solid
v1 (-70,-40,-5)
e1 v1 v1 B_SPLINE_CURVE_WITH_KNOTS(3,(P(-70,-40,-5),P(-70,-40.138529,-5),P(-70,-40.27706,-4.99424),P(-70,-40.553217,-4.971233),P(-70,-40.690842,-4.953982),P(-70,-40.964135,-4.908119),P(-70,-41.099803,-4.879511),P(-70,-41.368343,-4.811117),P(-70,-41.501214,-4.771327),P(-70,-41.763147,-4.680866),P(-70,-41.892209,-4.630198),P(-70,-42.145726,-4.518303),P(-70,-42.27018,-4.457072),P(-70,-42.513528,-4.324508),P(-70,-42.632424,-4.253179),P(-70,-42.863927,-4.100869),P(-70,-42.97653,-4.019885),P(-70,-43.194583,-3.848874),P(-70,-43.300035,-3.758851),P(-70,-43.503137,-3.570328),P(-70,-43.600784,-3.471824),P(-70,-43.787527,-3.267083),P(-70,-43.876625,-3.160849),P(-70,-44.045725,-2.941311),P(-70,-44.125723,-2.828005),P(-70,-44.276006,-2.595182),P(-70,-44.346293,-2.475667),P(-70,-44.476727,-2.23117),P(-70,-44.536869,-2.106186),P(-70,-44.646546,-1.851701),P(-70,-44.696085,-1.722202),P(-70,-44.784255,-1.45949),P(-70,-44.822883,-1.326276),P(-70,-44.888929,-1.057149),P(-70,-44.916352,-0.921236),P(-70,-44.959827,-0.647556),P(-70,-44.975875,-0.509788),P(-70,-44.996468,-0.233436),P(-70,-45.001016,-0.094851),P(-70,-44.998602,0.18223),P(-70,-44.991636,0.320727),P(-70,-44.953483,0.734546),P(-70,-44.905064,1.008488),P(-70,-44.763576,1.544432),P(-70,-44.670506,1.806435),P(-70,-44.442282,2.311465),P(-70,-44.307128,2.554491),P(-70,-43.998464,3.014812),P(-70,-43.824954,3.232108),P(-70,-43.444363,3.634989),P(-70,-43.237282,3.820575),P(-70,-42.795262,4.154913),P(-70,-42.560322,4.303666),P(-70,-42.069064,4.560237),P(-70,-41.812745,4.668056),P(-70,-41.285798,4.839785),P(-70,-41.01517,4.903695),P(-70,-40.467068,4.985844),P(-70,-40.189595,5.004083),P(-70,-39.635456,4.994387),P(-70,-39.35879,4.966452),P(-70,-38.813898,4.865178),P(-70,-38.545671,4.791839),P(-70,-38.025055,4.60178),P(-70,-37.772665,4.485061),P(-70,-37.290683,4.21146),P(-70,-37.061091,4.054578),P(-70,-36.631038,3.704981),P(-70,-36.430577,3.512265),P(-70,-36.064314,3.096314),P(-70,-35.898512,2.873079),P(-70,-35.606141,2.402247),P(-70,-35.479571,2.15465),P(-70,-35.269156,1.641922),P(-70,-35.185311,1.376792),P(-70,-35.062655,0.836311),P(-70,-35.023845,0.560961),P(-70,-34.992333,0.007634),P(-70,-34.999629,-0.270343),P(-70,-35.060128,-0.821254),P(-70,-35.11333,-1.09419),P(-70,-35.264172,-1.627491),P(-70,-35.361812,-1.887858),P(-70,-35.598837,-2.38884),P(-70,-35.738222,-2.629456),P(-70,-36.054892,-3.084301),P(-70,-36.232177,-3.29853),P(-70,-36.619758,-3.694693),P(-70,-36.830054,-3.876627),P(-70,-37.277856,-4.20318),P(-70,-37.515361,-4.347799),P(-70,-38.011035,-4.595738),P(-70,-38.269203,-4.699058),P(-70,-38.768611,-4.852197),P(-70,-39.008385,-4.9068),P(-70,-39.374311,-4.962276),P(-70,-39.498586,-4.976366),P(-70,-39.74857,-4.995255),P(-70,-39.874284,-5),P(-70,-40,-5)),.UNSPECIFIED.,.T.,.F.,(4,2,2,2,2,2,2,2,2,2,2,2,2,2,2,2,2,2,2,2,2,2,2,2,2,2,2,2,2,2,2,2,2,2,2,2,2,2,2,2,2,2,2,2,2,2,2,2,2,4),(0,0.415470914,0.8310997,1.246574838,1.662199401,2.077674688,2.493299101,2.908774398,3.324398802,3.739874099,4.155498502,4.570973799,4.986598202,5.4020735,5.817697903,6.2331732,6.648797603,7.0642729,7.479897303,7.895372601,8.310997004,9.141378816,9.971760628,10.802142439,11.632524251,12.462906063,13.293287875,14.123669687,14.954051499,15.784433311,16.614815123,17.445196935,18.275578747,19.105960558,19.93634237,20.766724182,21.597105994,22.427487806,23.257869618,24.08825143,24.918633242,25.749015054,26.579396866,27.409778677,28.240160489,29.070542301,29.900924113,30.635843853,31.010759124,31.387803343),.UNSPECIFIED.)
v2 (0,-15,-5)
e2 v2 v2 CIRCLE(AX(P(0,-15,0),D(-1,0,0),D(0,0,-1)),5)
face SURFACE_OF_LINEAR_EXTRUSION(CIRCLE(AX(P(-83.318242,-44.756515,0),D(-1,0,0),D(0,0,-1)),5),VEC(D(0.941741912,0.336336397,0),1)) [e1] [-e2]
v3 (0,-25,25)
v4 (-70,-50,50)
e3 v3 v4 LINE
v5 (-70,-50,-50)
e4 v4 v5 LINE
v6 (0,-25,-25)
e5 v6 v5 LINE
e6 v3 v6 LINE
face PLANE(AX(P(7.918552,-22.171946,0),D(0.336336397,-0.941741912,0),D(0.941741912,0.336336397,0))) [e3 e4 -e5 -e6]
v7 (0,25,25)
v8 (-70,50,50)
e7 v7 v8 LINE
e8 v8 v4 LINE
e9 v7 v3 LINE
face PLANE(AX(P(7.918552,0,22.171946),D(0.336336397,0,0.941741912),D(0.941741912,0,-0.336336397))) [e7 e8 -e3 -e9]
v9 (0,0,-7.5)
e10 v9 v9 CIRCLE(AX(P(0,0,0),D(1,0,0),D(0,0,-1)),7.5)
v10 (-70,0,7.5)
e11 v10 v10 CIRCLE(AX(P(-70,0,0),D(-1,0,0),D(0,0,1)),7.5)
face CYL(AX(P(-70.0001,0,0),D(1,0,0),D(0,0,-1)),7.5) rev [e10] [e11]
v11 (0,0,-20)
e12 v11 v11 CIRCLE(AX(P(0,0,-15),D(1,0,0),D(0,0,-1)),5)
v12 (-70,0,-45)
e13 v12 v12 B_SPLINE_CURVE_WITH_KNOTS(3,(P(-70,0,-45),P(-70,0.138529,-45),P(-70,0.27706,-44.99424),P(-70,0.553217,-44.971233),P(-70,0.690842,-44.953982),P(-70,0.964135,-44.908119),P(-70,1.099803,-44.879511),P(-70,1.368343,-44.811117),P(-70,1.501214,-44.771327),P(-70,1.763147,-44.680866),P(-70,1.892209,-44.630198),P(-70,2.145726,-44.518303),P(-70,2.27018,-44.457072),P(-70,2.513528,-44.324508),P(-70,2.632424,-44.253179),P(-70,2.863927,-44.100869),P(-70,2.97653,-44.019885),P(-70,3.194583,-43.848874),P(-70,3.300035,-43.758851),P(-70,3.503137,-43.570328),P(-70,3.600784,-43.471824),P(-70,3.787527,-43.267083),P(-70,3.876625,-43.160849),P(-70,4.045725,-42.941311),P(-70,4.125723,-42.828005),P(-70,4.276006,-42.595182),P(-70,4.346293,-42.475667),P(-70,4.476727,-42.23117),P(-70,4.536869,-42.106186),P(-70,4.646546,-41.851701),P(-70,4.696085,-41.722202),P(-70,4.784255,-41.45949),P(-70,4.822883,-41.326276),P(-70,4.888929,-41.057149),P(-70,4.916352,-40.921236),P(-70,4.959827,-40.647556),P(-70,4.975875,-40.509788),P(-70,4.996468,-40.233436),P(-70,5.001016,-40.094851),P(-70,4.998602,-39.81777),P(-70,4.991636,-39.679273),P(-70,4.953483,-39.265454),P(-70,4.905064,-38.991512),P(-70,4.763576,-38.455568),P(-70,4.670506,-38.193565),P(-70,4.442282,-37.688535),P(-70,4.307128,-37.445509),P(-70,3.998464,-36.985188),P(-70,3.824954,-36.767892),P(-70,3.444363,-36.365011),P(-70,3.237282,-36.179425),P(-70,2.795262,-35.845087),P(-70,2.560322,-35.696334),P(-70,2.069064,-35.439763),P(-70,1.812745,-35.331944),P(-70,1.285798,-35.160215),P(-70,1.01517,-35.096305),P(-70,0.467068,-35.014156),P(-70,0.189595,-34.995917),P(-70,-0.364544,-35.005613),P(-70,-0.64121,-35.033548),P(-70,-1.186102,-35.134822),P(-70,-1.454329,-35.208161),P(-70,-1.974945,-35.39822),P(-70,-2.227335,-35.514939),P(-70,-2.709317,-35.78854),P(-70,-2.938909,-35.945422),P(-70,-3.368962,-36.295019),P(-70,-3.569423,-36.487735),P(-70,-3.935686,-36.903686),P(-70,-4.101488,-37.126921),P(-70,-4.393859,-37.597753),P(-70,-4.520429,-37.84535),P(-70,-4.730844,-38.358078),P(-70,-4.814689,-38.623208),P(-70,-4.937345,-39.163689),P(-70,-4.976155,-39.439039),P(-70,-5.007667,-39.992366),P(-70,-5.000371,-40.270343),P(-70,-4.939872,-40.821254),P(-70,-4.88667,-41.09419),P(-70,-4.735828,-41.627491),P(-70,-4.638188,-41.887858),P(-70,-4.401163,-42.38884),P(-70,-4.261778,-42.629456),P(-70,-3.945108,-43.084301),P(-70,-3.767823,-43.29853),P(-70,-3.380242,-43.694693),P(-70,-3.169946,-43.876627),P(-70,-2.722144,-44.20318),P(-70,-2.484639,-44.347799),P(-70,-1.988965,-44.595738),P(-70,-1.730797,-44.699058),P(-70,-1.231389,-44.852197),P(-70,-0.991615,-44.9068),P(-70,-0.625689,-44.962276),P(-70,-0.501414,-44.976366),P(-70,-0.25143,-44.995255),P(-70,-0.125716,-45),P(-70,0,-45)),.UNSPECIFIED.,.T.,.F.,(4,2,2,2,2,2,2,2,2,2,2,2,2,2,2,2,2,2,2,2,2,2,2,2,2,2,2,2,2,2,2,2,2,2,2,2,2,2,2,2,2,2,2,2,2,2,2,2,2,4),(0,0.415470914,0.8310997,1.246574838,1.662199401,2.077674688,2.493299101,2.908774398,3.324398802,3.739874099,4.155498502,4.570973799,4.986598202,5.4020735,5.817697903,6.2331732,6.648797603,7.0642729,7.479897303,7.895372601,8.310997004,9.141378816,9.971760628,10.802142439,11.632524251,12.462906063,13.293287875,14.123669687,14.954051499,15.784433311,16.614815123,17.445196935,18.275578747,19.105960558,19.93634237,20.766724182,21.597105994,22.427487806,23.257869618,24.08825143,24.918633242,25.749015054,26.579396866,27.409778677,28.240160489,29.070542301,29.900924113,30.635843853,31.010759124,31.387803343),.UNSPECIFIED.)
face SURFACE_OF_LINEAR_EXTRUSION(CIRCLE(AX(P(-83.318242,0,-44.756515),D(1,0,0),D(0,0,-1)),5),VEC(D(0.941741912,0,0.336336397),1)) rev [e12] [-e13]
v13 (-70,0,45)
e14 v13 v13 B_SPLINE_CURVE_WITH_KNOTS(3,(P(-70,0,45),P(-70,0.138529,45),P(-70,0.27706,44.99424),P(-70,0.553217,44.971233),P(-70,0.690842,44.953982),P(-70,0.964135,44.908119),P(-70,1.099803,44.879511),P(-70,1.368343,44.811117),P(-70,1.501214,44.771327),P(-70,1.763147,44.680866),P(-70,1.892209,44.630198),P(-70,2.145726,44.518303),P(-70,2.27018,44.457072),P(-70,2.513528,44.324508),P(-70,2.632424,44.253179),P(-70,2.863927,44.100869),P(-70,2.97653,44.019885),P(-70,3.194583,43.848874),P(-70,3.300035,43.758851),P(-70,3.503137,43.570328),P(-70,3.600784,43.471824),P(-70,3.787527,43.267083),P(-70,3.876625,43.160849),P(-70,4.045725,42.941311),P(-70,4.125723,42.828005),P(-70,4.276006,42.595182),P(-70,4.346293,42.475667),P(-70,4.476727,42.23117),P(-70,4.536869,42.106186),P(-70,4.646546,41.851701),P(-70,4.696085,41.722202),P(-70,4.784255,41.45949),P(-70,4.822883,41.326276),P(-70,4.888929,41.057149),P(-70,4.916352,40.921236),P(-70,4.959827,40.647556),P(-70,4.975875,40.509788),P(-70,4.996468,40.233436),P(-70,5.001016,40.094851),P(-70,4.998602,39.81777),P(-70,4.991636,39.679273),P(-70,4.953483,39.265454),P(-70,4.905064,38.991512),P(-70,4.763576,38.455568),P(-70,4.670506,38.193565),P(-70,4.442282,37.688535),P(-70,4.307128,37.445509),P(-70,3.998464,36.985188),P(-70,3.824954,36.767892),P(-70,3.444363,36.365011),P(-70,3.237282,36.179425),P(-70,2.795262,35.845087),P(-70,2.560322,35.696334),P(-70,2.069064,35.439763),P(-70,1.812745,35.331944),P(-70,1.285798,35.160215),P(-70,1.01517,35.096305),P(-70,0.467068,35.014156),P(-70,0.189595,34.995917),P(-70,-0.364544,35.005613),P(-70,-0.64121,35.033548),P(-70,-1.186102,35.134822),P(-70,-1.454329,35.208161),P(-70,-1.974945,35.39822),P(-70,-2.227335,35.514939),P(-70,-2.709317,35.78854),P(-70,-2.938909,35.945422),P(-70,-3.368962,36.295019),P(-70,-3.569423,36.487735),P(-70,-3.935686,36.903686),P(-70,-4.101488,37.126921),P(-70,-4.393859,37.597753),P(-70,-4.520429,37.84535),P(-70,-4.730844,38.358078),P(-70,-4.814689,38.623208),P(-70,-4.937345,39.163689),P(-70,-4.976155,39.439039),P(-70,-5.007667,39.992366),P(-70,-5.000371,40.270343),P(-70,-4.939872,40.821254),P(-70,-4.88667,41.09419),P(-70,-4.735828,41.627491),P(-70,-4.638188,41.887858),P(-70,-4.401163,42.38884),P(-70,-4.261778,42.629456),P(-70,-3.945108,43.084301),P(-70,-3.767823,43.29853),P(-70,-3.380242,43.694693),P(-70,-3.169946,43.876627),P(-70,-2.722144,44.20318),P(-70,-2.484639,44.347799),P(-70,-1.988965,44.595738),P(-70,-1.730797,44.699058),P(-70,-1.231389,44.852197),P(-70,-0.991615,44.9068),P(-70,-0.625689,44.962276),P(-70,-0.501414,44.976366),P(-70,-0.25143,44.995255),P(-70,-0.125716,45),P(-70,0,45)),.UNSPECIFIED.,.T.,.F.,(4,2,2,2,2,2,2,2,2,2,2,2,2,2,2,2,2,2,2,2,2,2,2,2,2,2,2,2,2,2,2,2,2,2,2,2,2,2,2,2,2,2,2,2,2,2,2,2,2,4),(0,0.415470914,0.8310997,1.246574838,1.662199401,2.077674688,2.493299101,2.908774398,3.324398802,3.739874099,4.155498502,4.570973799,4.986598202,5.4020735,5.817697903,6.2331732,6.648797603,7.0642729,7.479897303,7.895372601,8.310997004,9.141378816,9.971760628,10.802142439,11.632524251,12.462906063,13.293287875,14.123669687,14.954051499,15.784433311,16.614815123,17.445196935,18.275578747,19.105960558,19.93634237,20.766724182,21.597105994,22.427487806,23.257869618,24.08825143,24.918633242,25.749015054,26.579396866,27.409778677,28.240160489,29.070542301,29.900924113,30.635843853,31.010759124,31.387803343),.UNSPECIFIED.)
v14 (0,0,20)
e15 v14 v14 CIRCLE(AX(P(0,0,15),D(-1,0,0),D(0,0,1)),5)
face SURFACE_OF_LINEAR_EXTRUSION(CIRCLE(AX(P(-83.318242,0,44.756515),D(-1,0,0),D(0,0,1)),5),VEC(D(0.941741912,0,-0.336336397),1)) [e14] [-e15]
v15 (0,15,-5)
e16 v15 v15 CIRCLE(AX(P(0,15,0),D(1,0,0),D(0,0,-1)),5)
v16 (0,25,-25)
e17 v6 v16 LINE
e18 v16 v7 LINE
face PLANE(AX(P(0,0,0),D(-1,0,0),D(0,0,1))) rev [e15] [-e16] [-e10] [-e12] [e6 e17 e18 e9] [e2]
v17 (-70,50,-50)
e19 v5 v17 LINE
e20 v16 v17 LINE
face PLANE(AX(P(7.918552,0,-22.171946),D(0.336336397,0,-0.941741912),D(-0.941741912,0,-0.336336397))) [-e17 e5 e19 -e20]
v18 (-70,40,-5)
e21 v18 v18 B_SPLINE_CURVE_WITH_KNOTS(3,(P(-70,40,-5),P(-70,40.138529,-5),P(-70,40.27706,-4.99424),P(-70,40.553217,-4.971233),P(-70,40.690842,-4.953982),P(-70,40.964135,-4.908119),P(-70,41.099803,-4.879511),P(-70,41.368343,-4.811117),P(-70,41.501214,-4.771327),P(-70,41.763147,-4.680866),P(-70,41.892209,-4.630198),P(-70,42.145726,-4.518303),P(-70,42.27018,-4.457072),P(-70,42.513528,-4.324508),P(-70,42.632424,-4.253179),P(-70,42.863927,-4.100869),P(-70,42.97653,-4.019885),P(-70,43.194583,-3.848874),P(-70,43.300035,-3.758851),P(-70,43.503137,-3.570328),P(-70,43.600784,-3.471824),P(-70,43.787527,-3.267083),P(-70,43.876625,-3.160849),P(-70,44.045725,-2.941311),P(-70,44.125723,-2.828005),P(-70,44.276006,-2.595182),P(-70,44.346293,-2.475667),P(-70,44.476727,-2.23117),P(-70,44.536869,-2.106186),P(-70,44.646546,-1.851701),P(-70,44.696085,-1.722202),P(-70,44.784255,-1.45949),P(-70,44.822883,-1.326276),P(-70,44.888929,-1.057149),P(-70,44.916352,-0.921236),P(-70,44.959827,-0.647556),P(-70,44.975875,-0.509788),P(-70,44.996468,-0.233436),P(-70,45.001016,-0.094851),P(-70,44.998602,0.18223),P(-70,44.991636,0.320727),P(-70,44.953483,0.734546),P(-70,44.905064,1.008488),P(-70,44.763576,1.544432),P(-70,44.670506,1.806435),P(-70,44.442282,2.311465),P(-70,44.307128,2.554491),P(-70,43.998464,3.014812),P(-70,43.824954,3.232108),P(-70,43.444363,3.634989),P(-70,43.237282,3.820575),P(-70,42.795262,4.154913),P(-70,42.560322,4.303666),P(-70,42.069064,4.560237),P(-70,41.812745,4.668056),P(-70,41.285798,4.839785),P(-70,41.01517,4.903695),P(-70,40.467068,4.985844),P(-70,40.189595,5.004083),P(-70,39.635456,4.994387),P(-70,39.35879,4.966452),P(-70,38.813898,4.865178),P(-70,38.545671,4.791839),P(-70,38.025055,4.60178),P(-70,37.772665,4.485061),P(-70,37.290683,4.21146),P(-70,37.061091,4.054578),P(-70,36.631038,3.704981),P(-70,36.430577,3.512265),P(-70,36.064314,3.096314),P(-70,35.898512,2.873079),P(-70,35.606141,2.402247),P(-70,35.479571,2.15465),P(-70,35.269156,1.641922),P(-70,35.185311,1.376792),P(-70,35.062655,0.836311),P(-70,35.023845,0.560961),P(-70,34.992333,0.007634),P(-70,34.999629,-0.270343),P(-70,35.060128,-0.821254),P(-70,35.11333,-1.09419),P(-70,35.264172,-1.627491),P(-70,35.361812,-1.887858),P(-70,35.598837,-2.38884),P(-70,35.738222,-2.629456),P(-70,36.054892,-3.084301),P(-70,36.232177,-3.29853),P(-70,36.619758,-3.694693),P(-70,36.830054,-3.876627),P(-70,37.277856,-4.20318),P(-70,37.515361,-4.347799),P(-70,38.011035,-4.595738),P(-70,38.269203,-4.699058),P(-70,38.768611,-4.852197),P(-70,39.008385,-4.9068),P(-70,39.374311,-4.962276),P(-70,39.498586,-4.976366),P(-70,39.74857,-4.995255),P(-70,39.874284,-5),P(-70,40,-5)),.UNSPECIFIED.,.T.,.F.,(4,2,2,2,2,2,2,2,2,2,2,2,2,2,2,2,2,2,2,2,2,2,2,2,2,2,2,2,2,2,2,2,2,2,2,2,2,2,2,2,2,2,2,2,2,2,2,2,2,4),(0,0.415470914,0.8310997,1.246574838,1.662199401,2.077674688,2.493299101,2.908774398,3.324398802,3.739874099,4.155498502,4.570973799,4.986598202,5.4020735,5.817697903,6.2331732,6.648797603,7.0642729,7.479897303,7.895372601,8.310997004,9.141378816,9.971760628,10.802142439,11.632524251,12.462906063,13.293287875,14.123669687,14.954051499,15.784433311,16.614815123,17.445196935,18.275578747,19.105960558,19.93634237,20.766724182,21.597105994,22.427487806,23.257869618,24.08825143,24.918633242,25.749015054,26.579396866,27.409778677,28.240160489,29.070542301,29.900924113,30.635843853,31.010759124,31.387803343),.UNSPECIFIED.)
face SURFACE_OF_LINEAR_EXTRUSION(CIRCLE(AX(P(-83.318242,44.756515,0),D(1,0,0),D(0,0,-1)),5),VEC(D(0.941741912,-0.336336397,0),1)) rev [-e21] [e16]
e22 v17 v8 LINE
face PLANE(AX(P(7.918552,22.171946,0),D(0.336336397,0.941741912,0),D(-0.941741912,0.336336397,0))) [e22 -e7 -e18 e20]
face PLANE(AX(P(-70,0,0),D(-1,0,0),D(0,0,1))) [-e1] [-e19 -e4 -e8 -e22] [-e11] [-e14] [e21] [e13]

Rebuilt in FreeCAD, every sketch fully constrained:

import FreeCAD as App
import Part
import Sketcher

V = App.Vector

doc = App.newDocument("Part")
body = doc.addObject("PartDesign::Body", "Body")

sketch1 = body.newObject("Sketcher::SketchObject", "Sketch")
sketch1.AttachmentSupport = (doc.getObject("YZ_Plane"), [""])
sketch1.MapMode = "FlatFace"
sketch1.addGeometry(Part.LineSegment(V(25, 25, 0), V(-25, 25, 0)), False)
sketch1.addGeometry(Part.LineSegment(V(-25, 25, 0), V(-25, -25, 0)), False)
sketch1.addGeometry(Part.LineSegment(V(-25, -25, 0), V(25, -25, 0)), False)
sketch1.addGeometry(Part.LineSegment(V(25, -25, 0), V(25, 25, 0)), False)
sketch1.addConstraint(Sketcher.Constraint("Coincident", 0, 2, 1, 1))
sketch1.addConstraint(Sketcher.Constraint("Coincident", 1, 2, 2, 1))
sketch1.addConstraint(Sketcher.Constraint("Coincident", 2, 2, 3, 1))
sketch1.addConstraint(Sketcher.Constraint("Coincident", 3, 2, 0, 1))
sketch1.addConstraint(Sketcher.Constraint("Horizontal", 0))
sketch1.addConstraint(Sketcher.Constraint("Vertical", 1))
sketch1.addConstraint(Sketcher.Constraint("Horizontal", 2))
sketch1.addConstraint(Sketcher.Constraint("Vertical", 3))
sketch1.addConstraint(Sketcher.Constraint("Symmetric", 0, 2, 2, 2, -1, 1))
sketch1.addConstraint(Sketcher.Constraint("Equal", 2, 1))
sketch1.addConstraint(Sketcher.Constraint("DistanceX", 0, 2, 0, 1, 50.0))

sketch2 = body.newObject("Sketcher::SketchObject", "Sketch001")
sketch2.AttachmentSupport = (doc.getObject("YZ_Plane"), [""])
sketch2.MapMode = "FlatFace"
sketch2.AttachmentOffset = App.Placement(V(0, 0, -70), App.Rotation())
sketch2.addGeometry(Part.LineSegment(V(50, 50, 0), V(-50, 50, 0)), False)
sketch2.addGeometry(Part.LineSegment(V(-50, 50, 0), V(-50, -50, 0)), False)
sketch2.addGeometry(Part.LineSegment(V(-50, -50, 0), V(50, -50, 0)), False)
sketch2.addGeometry(Part.LineSegment(V(50, -50, 0), V(50, 50, 0)), False)
sketch2.addConstraint(Sketcher.Constraint("Coincident", 0, 2, 1, 1))
sketch2.addConstraint(Sketcher.Constraint("Coincident", 1, 2, 2, 1))
sketch2.addConstraint(Sketcher.Constraint("Coincident", 2, 2, 3, 1))
sketch2.addConstraint(Sketcher.Constraint("Coincident", 3, 2, 0, 1))
sketch2.addConstraint(Sketcher.Constraint("Horizontal", 0))
sketch2.addConstraint(Sketcher.Constraint("Vertical", 1))
sketch2.addConstraint(Sketcher.Constraint("Horizontal", 2))
sketch2.addConstraint(Sketcher.Constraint("Vertical", 3))
sketch2.addConstraint(Sketcher.Constraint("Symmetric", 0, 2, 2, 2, -1, 1))
sketch2.addConstraint(Sketcher.Constraint("Equal", 2, 1))
sketch2.addConstraint(Sketcher.Constraint("DistanceX", 0, 2, 0, 1, 100.0))

additiveloft = body.newObject("PartDesign::AdditiveLoft", "AdditiveLoft")
additiveloft.Profile = sketch1
additiveloft.Sections = [sketch2]

sketch3 = body.newObject("Sketcher::SketchObject", "Sketch002")
sketch3.AttachmentSupport = (doc.getObject("YZ_Plane"), [""])
sketch3.MapMode = "FlatFace"
sketch3.addGeometry(Part.Circle(V(0, -15, 0), V(0, 0, 1), 5), False)
sketch3.addConstraint(Sketcher.Constraint("PointOnObject", 0, 3, -2))
sketch3.addConstraint(Sketcher.Constraint("Diameter", 0, 10.0))
sketch3.addConstraint(Sketcher.Constraint("DistanceY", 0, 3, -1, 1, 15.0))

sketch4 = body.newObject("Sketcher::SketchObject", "Sketch003")
sketch4.Placement = App.Placement(V(4.751131, 0, -13.303167), App.Rotation(V(-0.941741912, 0, -0.336336397), V(0, 1.000000001, 0), V(0.336336397, 0, -0.941741912), "ZXY"))
sketch4.addGeometry(Part.LineSegment(V(5, 0, 0), V(79, 0, 0)), False)
sketch4.addConstraint(Sketcher.Constraint("Horizontal", 0))
sketch4.addConstraint(Sketcher.Constraint("PointOnObject", 0, 1, -1))
sketch4.addConstraint(Sketcher.Constraint("DistanceX", 0, 1, 0, 2, 74.330344))
sketch4.addConstraint(Sketcher.Constraint("DistanceX", -1, 1, 0, 2, 79.37539))
doc.recompute()

subtractivepipe = body.newObject("PartDesign::SubtractivePipe", "SubtractivePipe")
subtractivepipe.Profile = sketch3
subtractivepipe.Spine = (sketch4, ["Edge1"])

sketch5 = body.newObject("Sketcher::SketchObject", "Sketch004")
sketch5.AttachmentSupport = (doc.getObject("YZ_Plane"), [""])
sketch5.MapMode = "FlatFace"
sketch5.addGeometry(Part.Circle(V(15, 0, 0), V(0, 0, 1), 5), False)
sketch5.addConstraint(Sketcher.Constraint("PointOnObject", 0, 3, -1))
sketch5.addConstraint(Sketcher.Constraint("Diameter", 0, 10.0))
sketch5.addConstraint(Sketcher.Constraint("DistanceX", -1, 1, 0, 3, 15.0))

sketch6 = body.newObject("Sketcher::SketchObject", "Sketch005")
sketch6.Placement = App.Placement(V(4.751131, 13.303167, 0), App.Rotation(V(-0.941741912, 0.336336397, 0), V(0, 0, 1.000000001), V(0.336336397, 0.941741912, 0), "ZXY"))
sketch6.addGeometry(Part.LineSegment(V(5, 0, 0), V(79, 0, 0)), False)
sketch6.addConstraint(Sketcher.Constraint("Horizontal", 0))
sketch6.addConstraint(Sketcher.Constraint("PointOnObject", 0, 1, -1))
sketch6.addConstraint(Sketcher.Constraint("DistanceX", 0, 1, 0, 2, 74.330344))
sketch6.addConstraint(Sketcher.Constraint("DistanceX", -1, 1, 0, 2, 79.37539))
doc.recompute()

subtractivepipe2 = body.newObject("PartDesign::SubtractivePipe", "SubtractivePipe001")
subtractivepipe2.Profile = sketch5
subtractivepipe2.Spine = (sketch6, ["Edge1"])
doc.recompute()

mirrored = body.newObject("PartDesign::Mirrored", "Mirrored")
mirrored.Originals = [subtractivepipe]
mirrored.MirrorPlane = (doc.getObject("XY_Plane"), [""])
body.Tip = mirrored
doc.recompute()

mirrored2 = body.newObject("PartDesign::Mirrored", "Mirrored001")
mirrored2.Originals = [subtractivepipe2]
mirrored2.MirrorPlane = (doc.getObject("XZ_Plane"), [""])
body.Tip = mirrored2

sketch7 = body.newObject("Sketcher::SketchObject", "Sketch006")
sketch7.AttachmentSupport = (doc.getObject("YZ_Plane"), [""])
sketch7.MapMode = "FlatFace"
sketch7.addGeometry(Part.Circle(V(0, 0, 0), V(0, 0, 1), 8), False)
sketch7.addConstraint(Sketcher.Constraint("Coincident", 0, 3, -1, 1))
sketch7.addConstraint(Sketcher.Constraint("Diameter", 0, 15.0))
pocket1 = body.newObject("PartDesign::Pocket", "Pocket")
pocket1.Profile = sketch7
pocket1.Type = "ThroughAll"

doc.recompute()
